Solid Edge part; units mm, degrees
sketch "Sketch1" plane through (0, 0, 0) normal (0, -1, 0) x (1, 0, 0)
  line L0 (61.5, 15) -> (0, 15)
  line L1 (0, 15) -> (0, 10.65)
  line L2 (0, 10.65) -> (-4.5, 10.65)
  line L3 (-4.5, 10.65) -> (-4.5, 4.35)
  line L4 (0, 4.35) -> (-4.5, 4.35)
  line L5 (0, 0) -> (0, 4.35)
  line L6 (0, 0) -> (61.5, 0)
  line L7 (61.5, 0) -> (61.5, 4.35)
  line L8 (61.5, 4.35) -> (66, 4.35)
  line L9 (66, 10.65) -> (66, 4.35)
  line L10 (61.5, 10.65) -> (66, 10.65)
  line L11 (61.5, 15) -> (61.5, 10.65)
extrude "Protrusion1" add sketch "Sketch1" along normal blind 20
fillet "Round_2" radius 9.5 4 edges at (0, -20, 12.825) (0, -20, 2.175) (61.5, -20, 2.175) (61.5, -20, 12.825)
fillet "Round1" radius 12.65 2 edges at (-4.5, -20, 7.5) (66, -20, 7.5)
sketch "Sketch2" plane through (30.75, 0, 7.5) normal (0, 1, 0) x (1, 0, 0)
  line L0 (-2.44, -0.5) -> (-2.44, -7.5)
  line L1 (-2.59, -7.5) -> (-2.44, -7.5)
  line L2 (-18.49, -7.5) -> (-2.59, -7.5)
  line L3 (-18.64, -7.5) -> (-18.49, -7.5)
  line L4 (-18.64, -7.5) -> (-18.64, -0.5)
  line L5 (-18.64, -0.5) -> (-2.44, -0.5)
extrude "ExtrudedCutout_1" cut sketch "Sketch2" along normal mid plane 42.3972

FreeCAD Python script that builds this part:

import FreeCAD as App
import Part
import Sketcher

V = App.Vector


def edges_at(feature, points):
    """Names of the edges that pass closest to the given points."""
    edges = feature.Shape.Edges
    near = lambda p: min(range(len(edges)), key=lambda i: edges[i].distToShape(Part.Vertex(*p))[0])
    return sorted({f"Edge{near(p) + 1}" for p in points})


def add_polygon(sketch, points):
    """Adds a closed chain of lines whose ends are joined by coincident constraints."""
    first, n = sketch.GeometryCount, len(points)
    for a, b in zip(points, points[1:] + points[:1]):
        sketch.addGeometry(Part.LineSegment(App.Vector(*a, 0), App.Vector(*b, 0)), False)
    for i in range(n):
        sketch.addConstraint(Sketcher.Constraint("Coincident", first + i, 2, first + (i + 1) % n, 1))

doc = App.newDocument("Part")
body = doc.addObject("PartDesign::Body", "Body")

# Sketch on XZ plane
sketch1 = doc.addObject("Sketcher::SketchObject", "Sketch")
body.addObject(sketch1)
sketch1.AttachmentSupport = (doc.XZ_Plane, [""])
sketch1.MapMode = "FlatFace"
add_polygon(sketch1, [(61.5, 10.65), (61.5, 15), (0, 15), (0, 10.65), (-4.5, 10.65), (-4.5, 4.35), (0, 4.35), (0, 0), (61.5, 0), (61.5, 4.35), (66, 4.35), (66, 10.65)])  # lines 0-11
sketch1.addConstraint(Sketcher.Constraint("Vertical", 0))
sketch1.addConstraint(Sketcher.Constraint("Horizontal", 1))
sketch1.addConstraint(Sketcher.Constraint("Vertical", 2))
sketch1.addConstraint(Sketcher.Constraint("Horizontal", 3))
sketch1.addConstraint(Sketcher.Constraint("Vertical", 4))
sketch1.addConstraint(Sketcher.Constraint("Horizontal", 5))
sketch1.addConstraint(Sketcher.Constraint("Vertical", 6))
sketch1.addConstraint(Sketcher.Constraint("Horizontal", 7))
sketch1.addConstraint(Sketcher.Constraint("Vertical", 8))
sketch1.addConstraint(Sketcher.Constraint("Horizontal", 9))
sketch1.addConstraint(Sketcher.Constraint("Vertical", 10))
sketch1.addConstraint(Sketcher.Constraint("Horizontal", 11))
sketch1.addConstraint(Sketcher.Constraint("Coincident", 6, 2, -1, 1))
sketch1.addConstraint(Sketcher.Constraint("PointOnObject", 1, 2, -2))
sketch1.addConstraint(Sketcher.Constraint("Horizontal", 5, 2, 8, 2))
sketch1.addConstraint(Sketcher.Constraint("Horizontal", 3, 2, 10, 2))
sketch1.addConstraint(Sketcher.Constraint("Vertical", 0, 2, 7, 2))
sketch1.addConstraint(Sketcher.Constraint("Equal", 5, 9))
sketch1.addConstraint(Sketcher.Constraint("Equal", 2, 6))
sketch1.addConstraint(Sketcher.Constraint("DistanceX", 1, 2, 1, 1, 61.5))
sketch1.addConstraint(Sketcher.Constraint("DistanceX", 3, 2, 3, 1, 4.5))
sketch1.addConstraint(Sketcher.Constraint("DistanceY", 4, 2, 4, 1, 6.3))
sketch1.addConstraint(Sketcher.Constraint("DistanceY", -1, 1, 0, 2, 15.0))
pad1 = doc.addObject("PartDesign::Pad", "Pad")
body.addObject(pad1)
pad1.Profile = sketch1
pad1.Length = 20
doc.recompute()

fillet = doc.addObject("PartDesign::Fillet", "Fillet")
body.addObject(fillet)
fillet.Base = (pad1, edges_at(pad1, [
    (0, -20, 12.825),
    (0, -20, 2.175),
    (61.5, -20, 2.175),
    (61.5, -20, 12.825),
]))
fillet.Radius = 9.5
doc.recompute()

fillet2 = doc.addObject("PartDesign::Fillet", "Fillet001")
body.addObject(fillet2)
fillet2.Base = (fillet, edges_at(fillet, [(-4.5, -20, 7.5), (66, -20, 7.5)]))
fillet2.Radius = 12.65

# Sketch on XZ plane
sketch2 = doc.addObject("Sketcher::SketchObject", "Sketch001")
body.addObject(sketch2)
sketch2.AttachmentSupport = (doc.XZ_Plane, [""])
sketch2.MapMode = "FlatFace"
add_polygon(sketch2, [(28.31, 15), (28.31, 8), (12.11, 8), (12.11, 15)])  # lines 0-3
sketch2.addConstraint(Sketcher.Constraint("Vertical", 0))
sketch2.addConstraint(Sketcher.Constraint("Horizontal", 1))
sketch2.addConstraint(Sketcher.Constraint("Vertical", 2))
sketch2.addConstraint(Sketcher.Constraint("Horizontal", 3))
sketch2.addConstraint(Sketcher.Constraint("DistanceY", 0, 2, 0, 1, 7.0))
sketch2.addConstraint(Sketcher.Constraint("DistanceX", 1, 2, 1, 1, 16.2))
sketch2.addConstraint(Sketcher.Constraint("DistanceY", -1, 1, 0, 2, 8.0))
sketch2.addConstraint(Sketcher.Constraint("DistanceX", -1, 1, 0, 2, 28.31))
pocket1 = doc.addObject("PartDesign::Pocket", "Pocket")
body.addObject(pocket1)
pocket1.Profile = sketch2
pocket1.Length = 42.3972
pocket1.Midplane = True

doc.recompute()
